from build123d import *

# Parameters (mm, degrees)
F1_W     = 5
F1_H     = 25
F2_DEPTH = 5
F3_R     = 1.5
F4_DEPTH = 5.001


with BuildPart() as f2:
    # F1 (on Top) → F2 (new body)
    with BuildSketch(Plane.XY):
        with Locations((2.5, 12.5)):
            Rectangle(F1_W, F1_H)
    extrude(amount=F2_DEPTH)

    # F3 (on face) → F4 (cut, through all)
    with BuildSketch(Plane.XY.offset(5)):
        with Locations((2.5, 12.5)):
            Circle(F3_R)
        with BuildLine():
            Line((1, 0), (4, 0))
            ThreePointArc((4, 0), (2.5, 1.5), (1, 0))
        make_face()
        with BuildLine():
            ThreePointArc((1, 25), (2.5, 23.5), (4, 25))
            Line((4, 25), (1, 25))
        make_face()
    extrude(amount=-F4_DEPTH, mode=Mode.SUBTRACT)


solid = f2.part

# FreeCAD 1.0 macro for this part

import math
import FreeCAD as App
import Part
import Sketcher
Q = App.Units.Quantity


def add_polygon(sketch, points):
    """Adds a closed chain of lines whose ends are joined by coincident constraints."""
    first, n = sketch.GeometryCount, len(points)
    for a, b in zip(points, points[1:] + points[:1]):
        sketch.addGeometry(Part.LineSegment(App.Vector(*a, 0), App.Vector(*b, 0)), False)
    for i in range(n):
        sketch.addConstraint(Sketcher.Constraint("Coincident", first + i, 2, first + (i + 1) % n, 1))

doc = App.newDocument("Part")
body = doc.addObject("PartDesign::Body", "Body")

# Sketch on XY plane
sketch1 = body.newObject("Sketcher::SketchObject", "Sketch")
sketch1.AttachmentSupport = (doc.getObject("XY_Plane"), [""])
sketch1.MapMode = "FlatFace"
add_polygon(sketch1, [(0, 25), (0, 0), (5, 0), (5, 25)])  # lines 0-3
sketch1.addConstraint([
    Sketcher.Constraint("Vertical", 0),
    Sketcher.Constraint("Horizontal", 1),
    Sketcher.Constraint("Vertical", 2),
    Sketcher.Constraint("Horizontal", 3),
    Sketcher.Constraint("Coincident", 0, 2, -1, 1),
    Sketcher.Constraint("DistanceX", 1, 1, 1, 2, Q("5 mm")),
    Sketcher.Constraint("DistanceY", 0, 2, 0, 1, Q("25 mm")),
])
pad1 = body.newObject("PartDesign::Pad", "Pad")
pad1.Profile = sketch1
pad1.Length = 5

# Sketch on XY plane
sketch2 = body.newObject("Sketcher::SketchObject", "Sketch001")
sketch2.AttachmentSupport = (doc.getObject("XY_Plane"), [""])
sketch2.MapMode = "FlatFace"
sketch2.AttachmentOffset = App.Placement(App.Vector(0, 0, 5), App.Rotation())
sketch2.addGeometry([
    Part.Circle(App.Vector(2.5, 12.5, 0), App.Vector(0, 0, 1), 1.5),  # 0
    Part.LineSegment(App.Vector(1, 0, 0), App.Vector(4, 0, 0)),  # 1
    Part.ArcOfCircle(Part.Circle(App.Vector(2.5, 0, 0), App.Vector(0, 0, 1), 1.5), math.radians(0), math.radians(180)),  # 2
    Part.ArcOfCircle(Part.Circle(App.Vector(2.5, 25, 0), App.Vector(0, 0, 1), 1.5), math.radians(180), math.radians(360)),  # 3
    Part.LineSegment(App.Vector(4, 25, 0), App.Vector(1, 25, 0)),  # 4
], False)
sketch2.addConstraint([
    Sketcher.Constraint("Coincident", 1, 1, 2, 2),
    Sketcher.Constraint("Coincident", 2, 1, 1, 2),
    Sketcher.Constraint("Coincident", 3, 1, 4, 2),
    Sketcher.Constraint("Coincident", 4, 1, 3, 2),
    Sketcher.Constraint("Horizontal", 1),
    Sketcher.Constraint("Horizontal", 4),
    Sketcher.Constraint("Equal", 0, 2),
    Sketcher.Constraint("Equal", 2, 3),
    Sketcher.Constraint("PointOnObject", 2, 3, -1),
    Sketcher.Constraint("PointOnObject", 1, 1, -1),
    Sketcher.Constraint("Vertical", 0, 3, 2, 3),
    Sketcher.Constraint("Vertical", 2, 3, 3, 3),
    Sketcher.Constraint("Diameter", 0, Q("3 mm")),
    Sketcher.Constraint("DistanceY", -1, 1, 3, 3, Q("25 mm")),
    Sketcher.Constraint("DistanceX", -1, 1, 1, 1, Q("1 mm")),
    Sketcher.Constraint("DistanceY", -1, 1, 3, 1, Q("25 mm")),
    Sketcher.Constraint("DistanceY", -1, 1, 0, 3, Q("12.5 mm")),
])
pocket1 = body.newObject("PartDesign::Pocket", "Pocket")
pocket1.Profile = sketch2
pocket1.Type = "ThroughAll"

doc.recompute()
